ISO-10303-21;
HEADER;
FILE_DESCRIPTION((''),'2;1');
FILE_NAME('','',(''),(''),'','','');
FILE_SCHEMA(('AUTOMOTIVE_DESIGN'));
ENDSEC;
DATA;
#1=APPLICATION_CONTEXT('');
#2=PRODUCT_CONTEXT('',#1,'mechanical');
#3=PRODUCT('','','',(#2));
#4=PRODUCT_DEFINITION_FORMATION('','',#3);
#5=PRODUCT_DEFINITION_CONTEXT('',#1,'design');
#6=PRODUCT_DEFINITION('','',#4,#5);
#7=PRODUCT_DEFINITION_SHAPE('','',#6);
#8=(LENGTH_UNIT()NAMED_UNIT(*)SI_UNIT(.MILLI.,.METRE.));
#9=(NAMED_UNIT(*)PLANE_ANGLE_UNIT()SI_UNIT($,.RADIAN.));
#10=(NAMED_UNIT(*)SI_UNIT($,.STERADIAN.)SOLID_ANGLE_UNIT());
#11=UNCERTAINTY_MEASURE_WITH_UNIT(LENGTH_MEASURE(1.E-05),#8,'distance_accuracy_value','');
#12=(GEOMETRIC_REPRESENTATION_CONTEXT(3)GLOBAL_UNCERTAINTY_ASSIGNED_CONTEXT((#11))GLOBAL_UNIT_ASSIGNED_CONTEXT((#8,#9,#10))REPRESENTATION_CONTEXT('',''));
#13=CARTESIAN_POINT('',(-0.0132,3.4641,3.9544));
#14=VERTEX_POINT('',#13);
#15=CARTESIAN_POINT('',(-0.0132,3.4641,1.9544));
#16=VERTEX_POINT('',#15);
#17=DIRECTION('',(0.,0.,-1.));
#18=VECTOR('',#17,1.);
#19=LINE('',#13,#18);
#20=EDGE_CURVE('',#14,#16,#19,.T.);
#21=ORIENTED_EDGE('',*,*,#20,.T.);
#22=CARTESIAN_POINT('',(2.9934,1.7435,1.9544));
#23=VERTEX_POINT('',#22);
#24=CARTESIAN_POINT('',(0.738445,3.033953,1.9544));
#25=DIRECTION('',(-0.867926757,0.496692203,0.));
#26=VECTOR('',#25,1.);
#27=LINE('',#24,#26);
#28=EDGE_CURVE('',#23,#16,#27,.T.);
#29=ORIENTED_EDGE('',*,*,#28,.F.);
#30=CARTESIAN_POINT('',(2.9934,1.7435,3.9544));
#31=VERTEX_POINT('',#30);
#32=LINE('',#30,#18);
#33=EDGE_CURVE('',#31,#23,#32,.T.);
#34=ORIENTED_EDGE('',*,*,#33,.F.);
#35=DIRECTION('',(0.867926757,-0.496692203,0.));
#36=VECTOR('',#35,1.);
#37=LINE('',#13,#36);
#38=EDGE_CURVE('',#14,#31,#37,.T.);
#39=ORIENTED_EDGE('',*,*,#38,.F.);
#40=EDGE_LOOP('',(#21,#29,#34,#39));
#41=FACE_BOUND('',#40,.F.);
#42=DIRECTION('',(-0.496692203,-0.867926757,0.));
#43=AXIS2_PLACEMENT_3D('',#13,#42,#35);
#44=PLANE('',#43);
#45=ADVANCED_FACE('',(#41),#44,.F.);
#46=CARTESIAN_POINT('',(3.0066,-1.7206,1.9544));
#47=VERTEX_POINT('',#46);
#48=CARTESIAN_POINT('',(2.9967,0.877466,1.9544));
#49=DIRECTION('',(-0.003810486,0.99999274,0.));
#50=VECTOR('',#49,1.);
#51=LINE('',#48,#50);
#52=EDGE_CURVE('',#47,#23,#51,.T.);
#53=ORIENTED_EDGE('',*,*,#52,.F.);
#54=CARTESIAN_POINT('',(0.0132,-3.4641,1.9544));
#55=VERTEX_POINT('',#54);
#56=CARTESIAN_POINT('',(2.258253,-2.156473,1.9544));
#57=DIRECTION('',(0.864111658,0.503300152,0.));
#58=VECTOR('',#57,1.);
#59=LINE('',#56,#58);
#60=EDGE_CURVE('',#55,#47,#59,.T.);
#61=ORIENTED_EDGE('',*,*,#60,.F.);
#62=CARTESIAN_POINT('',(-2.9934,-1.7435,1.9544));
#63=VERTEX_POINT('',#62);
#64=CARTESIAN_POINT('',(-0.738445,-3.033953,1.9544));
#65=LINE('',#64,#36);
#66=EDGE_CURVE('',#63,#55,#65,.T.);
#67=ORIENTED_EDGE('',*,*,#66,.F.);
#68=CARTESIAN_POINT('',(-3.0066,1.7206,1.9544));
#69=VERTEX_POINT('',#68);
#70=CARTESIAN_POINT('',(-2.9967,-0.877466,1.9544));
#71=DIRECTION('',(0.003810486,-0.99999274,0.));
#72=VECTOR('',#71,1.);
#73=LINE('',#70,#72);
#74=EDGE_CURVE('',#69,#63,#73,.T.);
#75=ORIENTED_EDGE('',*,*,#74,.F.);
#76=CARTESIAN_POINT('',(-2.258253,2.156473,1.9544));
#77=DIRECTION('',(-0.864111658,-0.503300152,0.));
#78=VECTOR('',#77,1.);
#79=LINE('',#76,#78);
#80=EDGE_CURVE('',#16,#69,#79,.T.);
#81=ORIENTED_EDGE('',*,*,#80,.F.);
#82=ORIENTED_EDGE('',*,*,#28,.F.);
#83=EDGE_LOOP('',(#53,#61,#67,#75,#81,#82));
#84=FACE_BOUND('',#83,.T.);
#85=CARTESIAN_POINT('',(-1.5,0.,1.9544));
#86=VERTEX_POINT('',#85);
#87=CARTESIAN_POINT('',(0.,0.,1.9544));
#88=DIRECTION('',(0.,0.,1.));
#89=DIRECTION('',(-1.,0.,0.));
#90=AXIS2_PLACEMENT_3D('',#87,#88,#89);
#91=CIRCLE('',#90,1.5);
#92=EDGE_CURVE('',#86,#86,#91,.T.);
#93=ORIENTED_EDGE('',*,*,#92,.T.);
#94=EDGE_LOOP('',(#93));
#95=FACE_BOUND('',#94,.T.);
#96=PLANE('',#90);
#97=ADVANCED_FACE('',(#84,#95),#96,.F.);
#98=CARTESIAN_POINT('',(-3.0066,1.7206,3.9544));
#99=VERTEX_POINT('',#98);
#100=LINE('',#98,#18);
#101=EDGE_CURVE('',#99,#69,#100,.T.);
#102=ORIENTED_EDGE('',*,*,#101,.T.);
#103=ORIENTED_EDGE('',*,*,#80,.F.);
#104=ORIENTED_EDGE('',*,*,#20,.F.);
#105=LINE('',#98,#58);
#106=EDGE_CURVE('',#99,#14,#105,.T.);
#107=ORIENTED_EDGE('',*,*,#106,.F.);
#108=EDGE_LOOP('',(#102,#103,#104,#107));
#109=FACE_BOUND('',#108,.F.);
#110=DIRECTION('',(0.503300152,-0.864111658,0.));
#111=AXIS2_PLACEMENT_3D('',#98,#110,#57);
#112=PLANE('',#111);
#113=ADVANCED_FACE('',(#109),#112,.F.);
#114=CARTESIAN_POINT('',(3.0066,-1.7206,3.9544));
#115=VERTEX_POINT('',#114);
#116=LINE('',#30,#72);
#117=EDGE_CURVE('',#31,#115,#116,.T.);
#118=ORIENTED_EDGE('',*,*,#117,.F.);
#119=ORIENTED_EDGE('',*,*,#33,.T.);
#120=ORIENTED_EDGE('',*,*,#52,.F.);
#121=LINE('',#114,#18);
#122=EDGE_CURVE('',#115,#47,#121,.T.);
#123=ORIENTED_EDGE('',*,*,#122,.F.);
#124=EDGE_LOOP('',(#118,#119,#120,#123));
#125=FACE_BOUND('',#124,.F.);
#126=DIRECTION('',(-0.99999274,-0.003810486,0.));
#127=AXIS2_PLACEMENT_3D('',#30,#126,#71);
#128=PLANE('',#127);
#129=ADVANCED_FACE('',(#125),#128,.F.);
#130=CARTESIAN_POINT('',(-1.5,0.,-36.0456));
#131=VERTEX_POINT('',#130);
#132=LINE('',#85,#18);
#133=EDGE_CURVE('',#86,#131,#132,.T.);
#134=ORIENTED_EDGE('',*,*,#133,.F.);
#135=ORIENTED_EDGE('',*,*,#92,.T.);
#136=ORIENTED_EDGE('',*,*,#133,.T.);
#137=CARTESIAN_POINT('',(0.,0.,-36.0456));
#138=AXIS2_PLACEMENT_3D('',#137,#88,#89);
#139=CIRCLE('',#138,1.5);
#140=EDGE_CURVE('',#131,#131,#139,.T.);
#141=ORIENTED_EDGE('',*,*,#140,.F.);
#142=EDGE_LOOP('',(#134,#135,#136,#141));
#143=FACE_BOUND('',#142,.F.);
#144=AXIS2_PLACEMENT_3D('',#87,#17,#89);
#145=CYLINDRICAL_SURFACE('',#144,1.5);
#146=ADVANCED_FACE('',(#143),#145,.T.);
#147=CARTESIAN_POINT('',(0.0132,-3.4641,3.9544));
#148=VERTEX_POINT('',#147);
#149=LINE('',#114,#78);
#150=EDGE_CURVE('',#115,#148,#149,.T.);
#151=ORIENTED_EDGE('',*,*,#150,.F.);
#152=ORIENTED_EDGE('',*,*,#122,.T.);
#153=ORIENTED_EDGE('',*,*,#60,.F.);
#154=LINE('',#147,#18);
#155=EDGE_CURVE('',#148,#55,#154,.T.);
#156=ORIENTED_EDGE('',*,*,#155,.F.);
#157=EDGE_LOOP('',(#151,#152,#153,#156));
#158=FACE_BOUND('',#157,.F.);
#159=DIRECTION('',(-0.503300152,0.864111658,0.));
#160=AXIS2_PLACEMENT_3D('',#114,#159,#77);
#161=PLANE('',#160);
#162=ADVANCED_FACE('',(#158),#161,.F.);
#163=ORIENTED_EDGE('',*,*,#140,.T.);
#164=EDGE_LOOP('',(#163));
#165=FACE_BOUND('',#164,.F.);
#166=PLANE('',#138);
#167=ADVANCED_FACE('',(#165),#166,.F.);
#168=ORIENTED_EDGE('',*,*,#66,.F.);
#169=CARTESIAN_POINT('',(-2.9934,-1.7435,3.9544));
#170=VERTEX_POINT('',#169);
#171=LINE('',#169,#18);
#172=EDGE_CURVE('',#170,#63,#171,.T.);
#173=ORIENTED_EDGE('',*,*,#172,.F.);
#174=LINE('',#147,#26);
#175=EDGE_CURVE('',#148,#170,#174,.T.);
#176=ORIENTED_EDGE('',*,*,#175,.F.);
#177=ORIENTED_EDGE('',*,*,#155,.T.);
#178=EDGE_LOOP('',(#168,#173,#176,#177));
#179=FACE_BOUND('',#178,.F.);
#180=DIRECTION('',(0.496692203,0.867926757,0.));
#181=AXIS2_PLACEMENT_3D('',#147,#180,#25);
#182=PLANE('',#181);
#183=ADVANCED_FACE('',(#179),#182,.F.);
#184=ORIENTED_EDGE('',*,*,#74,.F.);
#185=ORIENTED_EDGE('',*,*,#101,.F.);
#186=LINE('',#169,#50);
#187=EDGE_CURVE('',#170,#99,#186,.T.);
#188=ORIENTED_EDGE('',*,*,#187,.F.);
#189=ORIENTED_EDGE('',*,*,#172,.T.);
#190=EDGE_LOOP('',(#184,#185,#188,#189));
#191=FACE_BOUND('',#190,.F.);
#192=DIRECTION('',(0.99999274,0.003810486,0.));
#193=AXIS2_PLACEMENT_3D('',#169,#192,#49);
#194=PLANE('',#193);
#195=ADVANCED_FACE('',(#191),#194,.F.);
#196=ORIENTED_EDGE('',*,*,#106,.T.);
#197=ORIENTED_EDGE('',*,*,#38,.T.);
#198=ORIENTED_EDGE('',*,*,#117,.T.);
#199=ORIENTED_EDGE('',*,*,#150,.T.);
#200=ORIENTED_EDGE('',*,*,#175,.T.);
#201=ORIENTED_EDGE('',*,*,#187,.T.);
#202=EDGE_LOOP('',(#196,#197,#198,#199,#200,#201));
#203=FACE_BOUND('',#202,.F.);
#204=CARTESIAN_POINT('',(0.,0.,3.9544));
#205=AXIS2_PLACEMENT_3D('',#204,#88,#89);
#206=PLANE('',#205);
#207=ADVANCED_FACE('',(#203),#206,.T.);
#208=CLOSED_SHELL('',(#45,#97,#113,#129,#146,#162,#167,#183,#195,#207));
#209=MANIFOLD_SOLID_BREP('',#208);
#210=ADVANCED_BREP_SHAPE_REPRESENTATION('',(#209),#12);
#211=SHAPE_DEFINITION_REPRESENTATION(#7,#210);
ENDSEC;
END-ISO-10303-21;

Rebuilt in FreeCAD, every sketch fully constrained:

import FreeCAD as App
import Part
import Sketcher
from FreeCAD import Vector

doc = App.newDocument("Part")
body = doc.addObject("PartDesign::Body", "Body")

# Sketch on XZ plane
sketch1 = body.newObject("Sketcher::SketchObject", "Sketch")
sketch1.AttachmentSupport = (doc.getObject("XZ_Plane"), [""])
sketch1.MapMode = "FlatFace"
sketch1.addGeometry(Part.LineSegment(Vector(-10, 3.9544, 0), Vector(0, 3.9544, 0)), False)
sketch1.addGeometry(Part.LineSegment(Vector(0, 3.9544, 0), Vector(0, -36.0456, 0)), False)
sketch1.addGeometry(Part.LineSegment(Vector(0, -36.0456, 0), Vector(-1.5, -36.0456, 0)), False)
sketch1.addGeometry(Part.LineSegment(Vector(-1.5, -36.0456, 0), Vector(-1.5, 1.9544, 0)), False)
sketch1.addGeometry(Part.LineSegment(Vector(-1.5, 1.9544, 0), Vector(-10, 1.9544, 0)), False)
sketch1.addGeometry(Part.LineSegment(Vector(-10, 1.9544, 0), Vector(-10, 3.9544, 0)), False)
sketch1.addConstraint(Sketcher.Constraint("Coincident", 0, 2, 1, 1))
sketch1.addConstraint(Sketcher.Constraint("Coincident", 1, 2, 2, 1))
sketch1.addConstraint(Sketcher.Constraint("Coincident", 2, 2, 3, 1))
sketch1.addConstraint(Sketcher.Constraint("Coincident", 3, 2, 4, 1))
sketch1.addConstraint(Sketcher.Constraint("Coincident", 4, 2, 5, 1))
sketch1.addConstraint(Sketcher.Constraint("Coincident", 5, 2, 0, 1))
sketch1.addConstraint(Sketcher.Constraint("Horizontal", 0))
sketch1.addConstraint(Sketcher.Constraint("Vertical", 1))
sketch1.addConstraint(Sketcher.Constraint("Horizontal", 2))
sketch1.addConstraint(Sketcher.Constraint("Vertical", 3))
sketch1.addConstraint(Sketcher.Constraint("Horizontal", 4))
sketch1.addConstraint(Sketcher.Constraint("Vertical", 5))
sketch1.addConstraint(Sketcher.Constraint("PointOnObject", 0, 2, -2))
sketch1.addConstraint(Sketcher.Constraint("DistanceX", 0, 1, 0, 2, 10.0))
sketch1.addConstraint(Sketcher.Constraint("DistanceY", 1, 2, 1, 1, 40.0))
sketch1.addConstraint(Sketcher.Constraint("DistanceY", 5, 1, 5, 2, 2.0))
sketch1.addConstraint(Sketcher.Constraint("DistanceX", 2, 2, 2, 1, 1.5))
sketch1.addConstraint(Sketcher.Constraint("DistanceY", -1, 1, 0, 2, 3.9544))
revolution = body.newObject("PartDesign::Revolution", "Revolution")
revolution.Profile = sketch1
revolution.ReferenceAxis = (sketch1, ["V_Axis"])
revolution.Angle = 360

# Sketch on XY plane
sketch2 = body.newObject("Sketcher::SketchObject", "Sketch001")
sketch2.AttachmentSupport = (doc.getObject("XY_Plane"), [""])
sketch2.MapMode = "FlatFace"
sketch2.AttachmentOffset = App.Placement(Vector(0, 0, 3.9544), App.Rotation())
sketch2.addGeometry(Part.Circle(Vector(0, 0, 0), Vector(0, 0, 1), 18.6664), False)
sketch2.addGeometry(Part.LineSegment(Vector(-2.9934, -1.7435, 0), Vector(-3.0066, 1.7206, 0)), False)
sketch2.addGeometry(Part.LineSegment(Vector(-3.0066, 1.7206, 0), Vector(-0.0132, 3.4641, 0)), False)
sketch2.addGeometry(Part.LineSegment(Vector(-0.0132, 3.4641, 0), Vector(2.9934, 1.7435, 0)), False)
sketch2.addGeometry(Part.LineSegment(Vector(2.9934, 1.7435, 0), Vector(3.0066, -1.7206, 0)), False)
sketch2.addGeometry(Part.LineSegment(Vector(3.0066, -1.7206, 0), Vector(0.0132, -3.4641, 0)), False)
sketch2.addGeometry(Part.LineSegment(Vector(0.0132, -3.4641, 0), Vector(-2.9934, -1.7435, 0)), False)
sketch2.addConstraint(Sketcher.Constraint("Coincident", 1, 2, 2, 1))
sketch2.addConstraint(Sketcher.Constraint("Coincident", 2, 2, 3, 1))
sketch2.addConstraint(Sketcher.Constraint("Coincident", 3, 2, 4, 1))
sketch2.addConstraint(Sketcher.Constraint("Coincident", 4, 2, 5, 1))
sketch2.addConstraint(Sketcher.Constraint("Coincident", 5, 2, 6, 1))
sketch2.addConstraint(Sketcher.Constraint("Coincident", 6, 2, 1, 1))
sketch2.addConstraint(Sketcher.Constraint("Coincident", 0, 3, -1, 1))
sketch2.addConstraint(Sketcher.Constraint("DistanceX", 1, 2, 3, 2, 6.0))
sketch2.addConstraint(Sketcher.Constraint("DistanceX", 6, 2, 4, 2, 6.0))
sketch2.addConstraint(Sketcher.Constraint("Diameter", 0, 37.3328))
sketch2.addConstraint(Sketcher.Constraint("Distance", 3, 3.464))
sketch2.addConstraint(Sketcher.Constraint("Distance", 6, 3.464))
sketch2.addConstraint(Sketcher.Constraint("DistanceY", -1, 1, 2, 2, 3.464))
sketch2.addConstraint(Sketcher.Constraint("DistanceY", 5, 2, -1, 1, 3.464))
sketch2.addConstraint(Sketcher.Constraint("DistanceY", 1, 2, 3, 2, 0.023))
sketch2.addConstraint(Sketcher.Constraint("DistanceY", 4, 2, 3, 2, 3.464))
sketch2.addConstraint(Sketcher.Constraint("DistanceY", 6, 2, 1, 2, 3.464))
sketch2.addConstraint(Sketcher.Constraint("Distance", 2, 3.4641))
sketch2.addConstraint(Sketcher.Constraint("DistanceX", 1, 2, -1, 1, 3.0066))
sketch2.addConstraint(Sketcher.Constraint("DistanceX", -1, 1, 4, 2, 3.0066))
pocket1 = body.newObject("PartDesign::Pocket", "Pocket")
pocket1.Profile = sketch2
pocket1.Type = "ThroughAll"

doc.recompute()
